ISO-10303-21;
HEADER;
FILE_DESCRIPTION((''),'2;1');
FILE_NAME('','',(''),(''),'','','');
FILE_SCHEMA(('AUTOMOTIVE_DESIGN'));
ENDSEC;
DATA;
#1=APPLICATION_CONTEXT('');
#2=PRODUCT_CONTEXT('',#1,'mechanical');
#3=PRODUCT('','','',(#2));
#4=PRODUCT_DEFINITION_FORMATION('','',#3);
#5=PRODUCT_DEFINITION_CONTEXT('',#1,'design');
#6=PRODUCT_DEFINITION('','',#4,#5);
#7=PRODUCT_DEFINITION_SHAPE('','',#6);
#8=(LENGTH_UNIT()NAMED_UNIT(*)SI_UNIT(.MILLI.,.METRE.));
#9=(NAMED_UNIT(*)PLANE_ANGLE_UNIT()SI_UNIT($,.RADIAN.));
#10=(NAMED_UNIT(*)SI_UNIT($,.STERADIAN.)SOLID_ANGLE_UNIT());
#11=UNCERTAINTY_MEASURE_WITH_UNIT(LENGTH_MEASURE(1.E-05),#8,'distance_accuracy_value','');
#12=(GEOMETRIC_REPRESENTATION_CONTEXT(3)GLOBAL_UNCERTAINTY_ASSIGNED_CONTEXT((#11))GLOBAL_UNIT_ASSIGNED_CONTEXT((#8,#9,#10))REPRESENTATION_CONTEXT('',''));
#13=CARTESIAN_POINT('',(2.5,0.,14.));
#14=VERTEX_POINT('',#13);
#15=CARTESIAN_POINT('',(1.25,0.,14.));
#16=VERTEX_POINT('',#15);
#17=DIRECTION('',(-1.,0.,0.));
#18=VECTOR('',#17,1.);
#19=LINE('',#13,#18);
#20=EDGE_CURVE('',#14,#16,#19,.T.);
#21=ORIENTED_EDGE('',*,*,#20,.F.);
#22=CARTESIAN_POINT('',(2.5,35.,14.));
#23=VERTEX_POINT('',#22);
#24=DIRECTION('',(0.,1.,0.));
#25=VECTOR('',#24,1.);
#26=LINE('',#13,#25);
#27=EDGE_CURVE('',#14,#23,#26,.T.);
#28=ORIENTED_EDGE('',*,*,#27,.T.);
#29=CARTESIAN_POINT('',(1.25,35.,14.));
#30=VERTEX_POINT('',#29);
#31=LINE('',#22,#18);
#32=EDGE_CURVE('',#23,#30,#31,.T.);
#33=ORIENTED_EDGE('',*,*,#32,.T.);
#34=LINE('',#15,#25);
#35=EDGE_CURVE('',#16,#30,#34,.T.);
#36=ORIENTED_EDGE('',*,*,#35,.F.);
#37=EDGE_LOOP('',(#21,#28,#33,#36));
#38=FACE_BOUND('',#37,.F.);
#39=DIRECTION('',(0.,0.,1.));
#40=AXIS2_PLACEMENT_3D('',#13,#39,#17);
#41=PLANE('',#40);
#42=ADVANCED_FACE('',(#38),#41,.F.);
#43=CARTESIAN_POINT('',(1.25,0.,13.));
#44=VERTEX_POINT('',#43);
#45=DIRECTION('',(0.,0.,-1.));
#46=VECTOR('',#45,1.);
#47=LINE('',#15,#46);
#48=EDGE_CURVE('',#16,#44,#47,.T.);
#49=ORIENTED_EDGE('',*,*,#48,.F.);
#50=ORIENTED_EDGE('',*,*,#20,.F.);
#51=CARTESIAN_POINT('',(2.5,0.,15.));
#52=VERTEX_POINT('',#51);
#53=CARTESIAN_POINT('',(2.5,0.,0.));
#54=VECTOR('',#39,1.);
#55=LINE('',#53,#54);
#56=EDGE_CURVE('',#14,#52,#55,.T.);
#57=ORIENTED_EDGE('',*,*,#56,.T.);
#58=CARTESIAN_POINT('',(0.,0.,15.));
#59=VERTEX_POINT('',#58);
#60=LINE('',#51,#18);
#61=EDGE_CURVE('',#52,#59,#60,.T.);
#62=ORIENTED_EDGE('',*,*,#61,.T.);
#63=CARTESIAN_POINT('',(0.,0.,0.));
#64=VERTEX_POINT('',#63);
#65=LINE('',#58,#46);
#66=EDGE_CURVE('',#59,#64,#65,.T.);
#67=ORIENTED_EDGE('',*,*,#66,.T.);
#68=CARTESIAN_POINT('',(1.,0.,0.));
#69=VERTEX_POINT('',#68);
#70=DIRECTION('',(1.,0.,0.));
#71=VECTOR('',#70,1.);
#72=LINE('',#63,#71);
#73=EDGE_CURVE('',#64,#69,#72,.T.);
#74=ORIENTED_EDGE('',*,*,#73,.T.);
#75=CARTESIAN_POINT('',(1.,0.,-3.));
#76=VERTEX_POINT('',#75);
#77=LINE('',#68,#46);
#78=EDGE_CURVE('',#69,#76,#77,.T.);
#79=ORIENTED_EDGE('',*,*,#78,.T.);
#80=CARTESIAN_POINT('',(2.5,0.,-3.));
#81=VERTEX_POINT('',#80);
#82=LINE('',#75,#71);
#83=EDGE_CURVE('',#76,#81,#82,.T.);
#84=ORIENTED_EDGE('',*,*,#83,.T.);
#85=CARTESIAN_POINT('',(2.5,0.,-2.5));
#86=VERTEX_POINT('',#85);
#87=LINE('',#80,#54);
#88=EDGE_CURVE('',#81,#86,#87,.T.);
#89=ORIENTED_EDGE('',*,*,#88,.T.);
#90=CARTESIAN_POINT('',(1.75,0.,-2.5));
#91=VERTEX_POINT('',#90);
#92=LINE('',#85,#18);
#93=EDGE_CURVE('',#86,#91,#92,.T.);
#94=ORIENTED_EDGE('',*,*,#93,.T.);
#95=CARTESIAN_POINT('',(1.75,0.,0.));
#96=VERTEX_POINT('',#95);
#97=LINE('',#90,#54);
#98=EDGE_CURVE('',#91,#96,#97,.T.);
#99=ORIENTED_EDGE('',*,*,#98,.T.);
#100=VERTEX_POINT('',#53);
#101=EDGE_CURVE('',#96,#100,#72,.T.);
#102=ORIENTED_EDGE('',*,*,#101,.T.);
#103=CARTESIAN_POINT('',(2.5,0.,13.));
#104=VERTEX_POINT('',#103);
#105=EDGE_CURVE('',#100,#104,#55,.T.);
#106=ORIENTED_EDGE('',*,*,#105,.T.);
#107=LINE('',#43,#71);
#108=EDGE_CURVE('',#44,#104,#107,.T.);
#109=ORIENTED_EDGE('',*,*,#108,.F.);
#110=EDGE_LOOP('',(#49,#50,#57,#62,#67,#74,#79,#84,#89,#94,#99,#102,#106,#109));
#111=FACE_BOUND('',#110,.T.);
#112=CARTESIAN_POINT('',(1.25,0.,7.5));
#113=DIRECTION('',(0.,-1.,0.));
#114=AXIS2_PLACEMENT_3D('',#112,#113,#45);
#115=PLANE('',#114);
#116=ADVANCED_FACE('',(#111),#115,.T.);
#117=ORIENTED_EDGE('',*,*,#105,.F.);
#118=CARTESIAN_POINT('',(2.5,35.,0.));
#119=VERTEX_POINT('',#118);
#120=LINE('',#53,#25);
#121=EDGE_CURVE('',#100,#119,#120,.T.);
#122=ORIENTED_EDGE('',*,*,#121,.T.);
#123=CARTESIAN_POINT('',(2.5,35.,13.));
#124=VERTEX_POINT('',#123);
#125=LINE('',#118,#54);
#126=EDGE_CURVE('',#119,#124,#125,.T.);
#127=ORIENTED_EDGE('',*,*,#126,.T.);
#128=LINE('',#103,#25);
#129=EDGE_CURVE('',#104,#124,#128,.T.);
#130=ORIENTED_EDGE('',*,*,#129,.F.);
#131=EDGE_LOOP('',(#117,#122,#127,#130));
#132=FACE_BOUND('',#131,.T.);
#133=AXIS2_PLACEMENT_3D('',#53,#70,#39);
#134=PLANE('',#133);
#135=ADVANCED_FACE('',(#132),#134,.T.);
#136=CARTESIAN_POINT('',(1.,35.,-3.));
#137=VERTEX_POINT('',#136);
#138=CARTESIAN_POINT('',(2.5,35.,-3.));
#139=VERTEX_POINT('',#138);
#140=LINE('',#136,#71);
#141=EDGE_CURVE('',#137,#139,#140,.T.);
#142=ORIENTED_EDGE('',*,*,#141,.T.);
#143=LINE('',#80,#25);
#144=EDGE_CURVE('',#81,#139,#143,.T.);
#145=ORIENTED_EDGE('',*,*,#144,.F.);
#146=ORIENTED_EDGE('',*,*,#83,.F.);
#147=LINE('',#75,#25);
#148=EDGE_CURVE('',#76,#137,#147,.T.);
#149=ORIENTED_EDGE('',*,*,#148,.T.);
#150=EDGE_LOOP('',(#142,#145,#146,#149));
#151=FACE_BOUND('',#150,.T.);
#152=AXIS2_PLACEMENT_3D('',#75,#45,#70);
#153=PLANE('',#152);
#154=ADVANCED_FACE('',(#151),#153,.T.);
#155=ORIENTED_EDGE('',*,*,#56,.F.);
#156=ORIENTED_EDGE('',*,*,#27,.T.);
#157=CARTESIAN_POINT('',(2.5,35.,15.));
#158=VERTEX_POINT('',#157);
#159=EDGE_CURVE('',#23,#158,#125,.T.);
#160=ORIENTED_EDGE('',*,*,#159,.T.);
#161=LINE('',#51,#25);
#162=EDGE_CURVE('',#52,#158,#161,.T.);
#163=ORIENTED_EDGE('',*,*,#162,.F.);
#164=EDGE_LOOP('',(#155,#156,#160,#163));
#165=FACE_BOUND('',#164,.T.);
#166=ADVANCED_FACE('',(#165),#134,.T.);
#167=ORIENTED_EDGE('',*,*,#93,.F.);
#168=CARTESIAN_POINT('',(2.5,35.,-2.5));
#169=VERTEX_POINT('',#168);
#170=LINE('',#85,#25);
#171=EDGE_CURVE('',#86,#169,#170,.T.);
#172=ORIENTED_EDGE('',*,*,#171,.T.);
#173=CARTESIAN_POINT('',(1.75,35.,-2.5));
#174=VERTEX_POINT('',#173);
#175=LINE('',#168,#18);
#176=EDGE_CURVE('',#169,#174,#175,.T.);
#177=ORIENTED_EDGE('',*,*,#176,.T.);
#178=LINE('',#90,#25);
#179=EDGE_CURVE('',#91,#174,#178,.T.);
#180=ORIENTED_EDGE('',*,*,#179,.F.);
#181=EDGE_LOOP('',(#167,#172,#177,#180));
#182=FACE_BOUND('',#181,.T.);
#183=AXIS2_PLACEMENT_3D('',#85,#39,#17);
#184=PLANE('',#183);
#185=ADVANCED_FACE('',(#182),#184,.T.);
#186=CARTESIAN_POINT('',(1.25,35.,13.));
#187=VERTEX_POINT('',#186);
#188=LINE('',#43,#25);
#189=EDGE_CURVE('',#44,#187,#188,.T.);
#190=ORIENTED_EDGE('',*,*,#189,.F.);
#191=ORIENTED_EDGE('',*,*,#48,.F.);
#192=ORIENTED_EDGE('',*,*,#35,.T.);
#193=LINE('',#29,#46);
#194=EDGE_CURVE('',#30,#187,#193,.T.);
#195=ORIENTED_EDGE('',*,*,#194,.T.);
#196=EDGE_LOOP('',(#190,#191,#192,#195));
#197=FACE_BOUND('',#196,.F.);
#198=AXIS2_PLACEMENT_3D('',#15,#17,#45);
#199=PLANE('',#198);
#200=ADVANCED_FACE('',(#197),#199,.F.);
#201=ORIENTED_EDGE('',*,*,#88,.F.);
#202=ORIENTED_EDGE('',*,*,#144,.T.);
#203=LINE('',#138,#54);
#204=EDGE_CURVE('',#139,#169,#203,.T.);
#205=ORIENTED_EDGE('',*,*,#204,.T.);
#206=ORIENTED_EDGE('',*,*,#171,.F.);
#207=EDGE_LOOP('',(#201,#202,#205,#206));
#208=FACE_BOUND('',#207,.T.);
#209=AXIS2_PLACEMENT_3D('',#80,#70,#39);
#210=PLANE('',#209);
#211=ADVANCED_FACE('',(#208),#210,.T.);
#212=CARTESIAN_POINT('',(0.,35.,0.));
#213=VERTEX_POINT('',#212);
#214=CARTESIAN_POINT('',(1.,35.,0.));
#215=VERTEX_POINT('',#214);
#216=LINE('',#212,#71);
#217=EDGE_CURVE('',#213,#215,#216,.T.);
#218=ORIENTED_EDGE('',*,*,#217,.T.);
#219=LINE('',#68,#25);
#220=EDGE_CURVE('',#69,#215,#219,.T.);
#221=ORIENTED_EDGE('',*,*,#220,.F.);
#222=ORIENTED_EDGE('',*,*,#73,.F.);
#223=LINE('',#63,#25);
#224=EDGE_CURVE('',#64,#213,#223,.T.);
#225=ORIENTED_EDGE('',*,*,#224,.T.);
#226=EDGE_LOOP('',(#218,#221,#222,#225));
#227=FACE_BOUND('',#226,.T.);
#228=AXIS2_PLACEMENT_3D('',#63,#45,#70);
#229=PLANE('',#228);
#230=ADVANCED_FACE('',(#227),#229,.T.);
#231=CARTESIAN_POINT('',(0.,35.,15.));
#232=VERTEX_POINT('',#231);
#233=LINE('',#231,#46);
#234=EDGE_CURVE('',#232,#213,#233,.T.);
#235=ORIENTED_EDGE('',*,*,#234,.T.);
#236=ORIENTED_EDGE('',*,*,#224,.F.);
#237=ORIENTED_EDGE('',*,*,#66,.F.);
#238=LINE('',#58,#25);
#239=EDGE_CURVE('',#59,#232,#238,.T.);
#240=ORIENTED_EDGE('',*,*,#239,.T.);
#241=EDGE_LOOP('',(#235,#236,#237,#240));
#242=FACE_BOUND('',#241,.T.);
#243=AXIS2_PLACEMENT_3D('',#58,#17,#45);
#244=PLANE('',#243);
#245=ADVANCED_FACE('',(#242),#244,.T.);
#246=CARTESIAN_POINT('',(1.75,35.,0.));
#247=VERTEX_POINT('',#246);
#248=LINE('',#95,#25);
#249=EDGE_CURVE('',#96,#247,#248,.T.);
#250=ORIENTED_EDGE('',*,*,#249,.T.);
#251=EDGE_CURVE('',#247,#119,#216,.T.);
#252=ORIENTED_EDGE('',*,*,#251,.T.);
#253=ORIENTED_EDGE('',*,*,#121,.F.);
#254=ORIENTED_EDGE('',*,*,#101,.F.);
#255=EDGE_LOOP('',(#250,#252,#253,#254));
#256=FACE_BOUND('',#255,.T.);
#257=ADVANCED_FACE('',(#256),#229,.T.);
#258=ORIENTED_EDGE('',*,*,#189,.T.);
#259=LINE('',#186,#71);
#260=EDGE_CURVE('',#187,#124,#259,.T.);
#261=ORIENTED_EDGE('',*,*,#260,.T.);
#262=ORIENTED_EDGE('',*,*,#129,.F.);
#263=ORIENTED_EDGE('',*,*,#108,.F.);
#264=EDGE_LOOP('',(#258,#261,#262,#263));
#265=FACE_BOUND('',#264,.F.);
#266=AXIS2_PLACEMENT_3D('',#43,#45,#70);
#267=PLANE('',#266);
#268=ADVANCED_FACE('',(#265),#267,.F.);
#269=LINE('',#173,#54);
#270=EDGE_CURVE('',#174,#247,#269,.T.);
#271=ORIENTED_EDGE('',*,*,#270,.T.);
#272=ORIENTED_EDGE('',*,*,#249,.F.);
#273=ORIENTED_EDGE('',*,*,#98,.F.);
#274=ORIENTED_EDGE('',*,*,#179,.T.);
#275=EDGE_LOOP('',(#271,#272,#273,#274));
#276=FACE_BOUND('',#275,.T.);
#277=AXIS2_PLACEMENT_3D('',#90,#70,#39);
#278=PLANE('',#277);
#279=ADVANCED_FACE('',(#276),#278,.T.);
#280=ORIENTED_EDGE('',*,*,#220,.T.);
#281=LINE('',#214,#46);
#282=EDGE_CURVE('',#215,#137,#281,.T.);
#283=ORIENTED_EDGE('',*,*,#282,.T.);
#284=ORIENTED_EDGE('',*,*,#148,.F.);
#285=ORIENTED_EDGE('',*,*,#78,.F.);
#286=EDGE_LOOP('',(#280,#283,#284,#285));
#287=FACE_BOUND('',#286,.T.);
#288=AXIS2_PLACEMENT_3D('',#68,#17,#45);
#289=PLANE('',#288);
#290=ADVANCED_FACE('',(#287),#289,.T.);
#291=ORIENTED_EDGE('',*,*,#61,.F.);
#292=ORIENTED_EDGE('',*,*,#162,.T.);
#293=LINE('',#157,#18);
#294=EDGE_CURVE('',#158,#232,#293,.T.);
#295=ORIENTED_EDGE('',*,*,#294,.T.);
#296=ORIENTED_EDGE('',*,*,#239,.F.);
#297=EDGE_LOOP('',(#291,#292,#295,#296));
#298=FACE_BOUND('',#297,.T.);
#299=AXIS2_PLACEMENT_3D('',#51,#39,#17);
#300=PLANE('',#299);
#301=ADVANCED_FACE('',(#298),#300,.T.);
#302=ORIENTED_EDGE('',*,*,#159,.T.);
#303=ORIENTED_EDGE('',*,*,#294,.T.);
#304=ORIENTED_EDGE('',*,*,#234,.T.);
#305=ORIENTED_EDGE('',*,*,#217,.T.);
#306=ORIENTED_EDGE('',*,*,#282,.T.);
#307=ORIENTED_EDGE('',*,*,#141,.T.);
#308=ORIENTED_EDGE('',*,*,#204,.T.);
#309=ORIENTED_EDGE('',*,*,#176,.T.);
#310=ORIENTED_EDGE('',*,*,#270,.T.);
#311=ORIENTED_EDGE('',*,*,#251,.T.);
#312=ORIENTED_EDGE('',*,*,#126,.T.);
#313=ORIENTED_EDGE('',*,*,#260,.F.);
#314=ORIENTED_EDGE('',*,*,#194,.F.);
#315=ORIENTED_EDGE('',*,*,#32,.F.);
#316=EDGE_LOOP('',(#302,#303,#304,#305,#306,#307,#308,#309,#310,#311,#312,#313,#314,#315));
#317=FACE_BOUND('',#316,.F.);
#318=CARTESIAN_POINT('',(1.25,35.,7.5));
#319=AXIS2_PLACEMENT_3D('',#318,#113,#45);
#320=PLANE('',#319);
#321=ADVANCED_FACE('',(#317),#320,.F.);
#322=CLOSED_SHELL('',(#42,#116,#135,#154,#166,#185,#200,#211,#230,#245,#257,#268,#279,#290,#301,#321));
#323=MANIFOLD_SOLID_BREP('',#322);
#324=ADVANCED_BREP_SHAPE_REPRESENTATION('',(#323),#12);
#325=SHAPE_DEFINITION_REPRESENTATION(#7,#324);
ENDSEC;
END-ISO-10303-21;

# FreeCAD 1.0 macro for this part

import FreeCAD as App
import Part
import Sketcher

V = App.Vector


def add_polygon(sketch, points):
    """Adds a closed chain of lines whose ends are joined by coincident constraints."""
    first, n = sketch.GeometryCount, len(points)
    for a, b in zip(points, points[1:] + points[:1]):
        sketch.addGeometry(Part.LineSegment(App.Vector(*a, 0), App.Vector(*b, 0)), False)
    for i in range(n):
        sketch.addConstraint(Sketcher.Constraint("Coincident", first + i, 2, first + (i + 1) % n, 1))

doc = App.newDocument("Part")
body = doc.addObject("PartDesign::Body", "Body")

sketch1 = body.newObject("Sketcher::SketchObject", "Sketch")
sketch1.AttachmentSupport = (doc.getObject("XZ_Plane"), [""])
sketch1.MapMode = "FlatFace"
add_polygon(sketch1, [(0, 0), (2.5, 0), (2.5, 15), (0, 15)])
sketch1.addConstraint([
    Sketcher.Constraint("Horizontal", 0),
    Sketcher.Constraint("Vertical", 1),
    Sketcher.Constraint("Horizontal", 2),
    Sketcher.Constraint("Vertical", 3),
    Sketcher.Constraint("Coincident", 3, 2, -1, 1),
    Sketcher.Constraint("DistanceY", 1, 1, 1, 2, 15.0),
    Sketcher.Constraint("DistanceX", 0, 1, 0, 2, 2.5),
])
pad1 = body.newObject("PartDesign::Pad", "Pad")
pad1.Profile = sketch1
pad1.Length = 35
pad1.Reversed = True

sketch2 = body.newObject("Sketcher::SketchObject", "Sketch001")
sketch2.AttachmentSupport = (doc.getObject("XZ_Plane"), [""])
sketch2.MapMode = "FlatFace"
add_polygon(sketch2, [(2.5, 13), (2.5, 14), (1.2, 14), (1.2, 13)])
sketch2.addConstraint([
    Sketcher.Constraint("Vertical", 0),
    Sketcher.Constraint("Horizontal", 1),
    Sketcher.Constraint("Vertical", 2),
    Sketcher.Constraint("Horizontal", 3),
    Sketcher.Constraint("DistanceY", 0, 1, 0, 2, 1.0),
    Sketcher.Constraint("DistanceY", -1, 1, 0, 2, 14.0),
    Sketcher.Constraint("DistanceX", 1, 2, 1, 1, 1.25),
    Sketcher.Constraint("DistanceX", -1, 1, 0, 2, 2.5),
])
pocket1 = body.newObject("PartDesign::Pocket", "Pocket")
pocket1.Profile = sketch2
pocket1.Length = 35

sketch3 = body.newObject("Sketcher::SketchObject", "Sketch002")
sketch3.AttachmentSupport = (doc.getObject("XZ_Plane"), [""])
sketch3.MapMode = "FlatFace"
add_polygon(sketch3, [(1.8, 0), (1, 0), (1, -3), (2.5, -3), (2.5, -2.5), (1.8, -2.5)])
sketch3.addConstraint([
    Sketcher.Constraint("Horizontal", 0),
    Sketcher.Constraint("Vertical", 1),
    Sketcher.Constraint("Horizontal", 2),
    Sketcher.Constraint("Vertical", 3),
    Sketcher.Constraint("Horizontal", 4),
    Sketcher.Constraint("Vertical", 5),
    Sketcher.Constraint("PointOnObject", 0, 2, -1),
    Sketcher.Constraint("Equal", 0, 4),
    Sketcher.Constraint("DistanceY", 1, 2, 1, 1, 3.0),
    Sketcher.Constraint("DistanceX", 2, 1, 2, 2, 1.5),
    Sketcher.Constraint("DistanceY", 3, 1, 3, 2, 0.5),
    Sketcher.Constraint("DistanceX", -1, 1, 0, 2, 1.0),
])
pad2 = body.newObject("PartDesign::Pad", "Pad001")
pad2.Profile = sketch3
pad2.Length = 35
pad2.Reversed = True

doc.recompute()
